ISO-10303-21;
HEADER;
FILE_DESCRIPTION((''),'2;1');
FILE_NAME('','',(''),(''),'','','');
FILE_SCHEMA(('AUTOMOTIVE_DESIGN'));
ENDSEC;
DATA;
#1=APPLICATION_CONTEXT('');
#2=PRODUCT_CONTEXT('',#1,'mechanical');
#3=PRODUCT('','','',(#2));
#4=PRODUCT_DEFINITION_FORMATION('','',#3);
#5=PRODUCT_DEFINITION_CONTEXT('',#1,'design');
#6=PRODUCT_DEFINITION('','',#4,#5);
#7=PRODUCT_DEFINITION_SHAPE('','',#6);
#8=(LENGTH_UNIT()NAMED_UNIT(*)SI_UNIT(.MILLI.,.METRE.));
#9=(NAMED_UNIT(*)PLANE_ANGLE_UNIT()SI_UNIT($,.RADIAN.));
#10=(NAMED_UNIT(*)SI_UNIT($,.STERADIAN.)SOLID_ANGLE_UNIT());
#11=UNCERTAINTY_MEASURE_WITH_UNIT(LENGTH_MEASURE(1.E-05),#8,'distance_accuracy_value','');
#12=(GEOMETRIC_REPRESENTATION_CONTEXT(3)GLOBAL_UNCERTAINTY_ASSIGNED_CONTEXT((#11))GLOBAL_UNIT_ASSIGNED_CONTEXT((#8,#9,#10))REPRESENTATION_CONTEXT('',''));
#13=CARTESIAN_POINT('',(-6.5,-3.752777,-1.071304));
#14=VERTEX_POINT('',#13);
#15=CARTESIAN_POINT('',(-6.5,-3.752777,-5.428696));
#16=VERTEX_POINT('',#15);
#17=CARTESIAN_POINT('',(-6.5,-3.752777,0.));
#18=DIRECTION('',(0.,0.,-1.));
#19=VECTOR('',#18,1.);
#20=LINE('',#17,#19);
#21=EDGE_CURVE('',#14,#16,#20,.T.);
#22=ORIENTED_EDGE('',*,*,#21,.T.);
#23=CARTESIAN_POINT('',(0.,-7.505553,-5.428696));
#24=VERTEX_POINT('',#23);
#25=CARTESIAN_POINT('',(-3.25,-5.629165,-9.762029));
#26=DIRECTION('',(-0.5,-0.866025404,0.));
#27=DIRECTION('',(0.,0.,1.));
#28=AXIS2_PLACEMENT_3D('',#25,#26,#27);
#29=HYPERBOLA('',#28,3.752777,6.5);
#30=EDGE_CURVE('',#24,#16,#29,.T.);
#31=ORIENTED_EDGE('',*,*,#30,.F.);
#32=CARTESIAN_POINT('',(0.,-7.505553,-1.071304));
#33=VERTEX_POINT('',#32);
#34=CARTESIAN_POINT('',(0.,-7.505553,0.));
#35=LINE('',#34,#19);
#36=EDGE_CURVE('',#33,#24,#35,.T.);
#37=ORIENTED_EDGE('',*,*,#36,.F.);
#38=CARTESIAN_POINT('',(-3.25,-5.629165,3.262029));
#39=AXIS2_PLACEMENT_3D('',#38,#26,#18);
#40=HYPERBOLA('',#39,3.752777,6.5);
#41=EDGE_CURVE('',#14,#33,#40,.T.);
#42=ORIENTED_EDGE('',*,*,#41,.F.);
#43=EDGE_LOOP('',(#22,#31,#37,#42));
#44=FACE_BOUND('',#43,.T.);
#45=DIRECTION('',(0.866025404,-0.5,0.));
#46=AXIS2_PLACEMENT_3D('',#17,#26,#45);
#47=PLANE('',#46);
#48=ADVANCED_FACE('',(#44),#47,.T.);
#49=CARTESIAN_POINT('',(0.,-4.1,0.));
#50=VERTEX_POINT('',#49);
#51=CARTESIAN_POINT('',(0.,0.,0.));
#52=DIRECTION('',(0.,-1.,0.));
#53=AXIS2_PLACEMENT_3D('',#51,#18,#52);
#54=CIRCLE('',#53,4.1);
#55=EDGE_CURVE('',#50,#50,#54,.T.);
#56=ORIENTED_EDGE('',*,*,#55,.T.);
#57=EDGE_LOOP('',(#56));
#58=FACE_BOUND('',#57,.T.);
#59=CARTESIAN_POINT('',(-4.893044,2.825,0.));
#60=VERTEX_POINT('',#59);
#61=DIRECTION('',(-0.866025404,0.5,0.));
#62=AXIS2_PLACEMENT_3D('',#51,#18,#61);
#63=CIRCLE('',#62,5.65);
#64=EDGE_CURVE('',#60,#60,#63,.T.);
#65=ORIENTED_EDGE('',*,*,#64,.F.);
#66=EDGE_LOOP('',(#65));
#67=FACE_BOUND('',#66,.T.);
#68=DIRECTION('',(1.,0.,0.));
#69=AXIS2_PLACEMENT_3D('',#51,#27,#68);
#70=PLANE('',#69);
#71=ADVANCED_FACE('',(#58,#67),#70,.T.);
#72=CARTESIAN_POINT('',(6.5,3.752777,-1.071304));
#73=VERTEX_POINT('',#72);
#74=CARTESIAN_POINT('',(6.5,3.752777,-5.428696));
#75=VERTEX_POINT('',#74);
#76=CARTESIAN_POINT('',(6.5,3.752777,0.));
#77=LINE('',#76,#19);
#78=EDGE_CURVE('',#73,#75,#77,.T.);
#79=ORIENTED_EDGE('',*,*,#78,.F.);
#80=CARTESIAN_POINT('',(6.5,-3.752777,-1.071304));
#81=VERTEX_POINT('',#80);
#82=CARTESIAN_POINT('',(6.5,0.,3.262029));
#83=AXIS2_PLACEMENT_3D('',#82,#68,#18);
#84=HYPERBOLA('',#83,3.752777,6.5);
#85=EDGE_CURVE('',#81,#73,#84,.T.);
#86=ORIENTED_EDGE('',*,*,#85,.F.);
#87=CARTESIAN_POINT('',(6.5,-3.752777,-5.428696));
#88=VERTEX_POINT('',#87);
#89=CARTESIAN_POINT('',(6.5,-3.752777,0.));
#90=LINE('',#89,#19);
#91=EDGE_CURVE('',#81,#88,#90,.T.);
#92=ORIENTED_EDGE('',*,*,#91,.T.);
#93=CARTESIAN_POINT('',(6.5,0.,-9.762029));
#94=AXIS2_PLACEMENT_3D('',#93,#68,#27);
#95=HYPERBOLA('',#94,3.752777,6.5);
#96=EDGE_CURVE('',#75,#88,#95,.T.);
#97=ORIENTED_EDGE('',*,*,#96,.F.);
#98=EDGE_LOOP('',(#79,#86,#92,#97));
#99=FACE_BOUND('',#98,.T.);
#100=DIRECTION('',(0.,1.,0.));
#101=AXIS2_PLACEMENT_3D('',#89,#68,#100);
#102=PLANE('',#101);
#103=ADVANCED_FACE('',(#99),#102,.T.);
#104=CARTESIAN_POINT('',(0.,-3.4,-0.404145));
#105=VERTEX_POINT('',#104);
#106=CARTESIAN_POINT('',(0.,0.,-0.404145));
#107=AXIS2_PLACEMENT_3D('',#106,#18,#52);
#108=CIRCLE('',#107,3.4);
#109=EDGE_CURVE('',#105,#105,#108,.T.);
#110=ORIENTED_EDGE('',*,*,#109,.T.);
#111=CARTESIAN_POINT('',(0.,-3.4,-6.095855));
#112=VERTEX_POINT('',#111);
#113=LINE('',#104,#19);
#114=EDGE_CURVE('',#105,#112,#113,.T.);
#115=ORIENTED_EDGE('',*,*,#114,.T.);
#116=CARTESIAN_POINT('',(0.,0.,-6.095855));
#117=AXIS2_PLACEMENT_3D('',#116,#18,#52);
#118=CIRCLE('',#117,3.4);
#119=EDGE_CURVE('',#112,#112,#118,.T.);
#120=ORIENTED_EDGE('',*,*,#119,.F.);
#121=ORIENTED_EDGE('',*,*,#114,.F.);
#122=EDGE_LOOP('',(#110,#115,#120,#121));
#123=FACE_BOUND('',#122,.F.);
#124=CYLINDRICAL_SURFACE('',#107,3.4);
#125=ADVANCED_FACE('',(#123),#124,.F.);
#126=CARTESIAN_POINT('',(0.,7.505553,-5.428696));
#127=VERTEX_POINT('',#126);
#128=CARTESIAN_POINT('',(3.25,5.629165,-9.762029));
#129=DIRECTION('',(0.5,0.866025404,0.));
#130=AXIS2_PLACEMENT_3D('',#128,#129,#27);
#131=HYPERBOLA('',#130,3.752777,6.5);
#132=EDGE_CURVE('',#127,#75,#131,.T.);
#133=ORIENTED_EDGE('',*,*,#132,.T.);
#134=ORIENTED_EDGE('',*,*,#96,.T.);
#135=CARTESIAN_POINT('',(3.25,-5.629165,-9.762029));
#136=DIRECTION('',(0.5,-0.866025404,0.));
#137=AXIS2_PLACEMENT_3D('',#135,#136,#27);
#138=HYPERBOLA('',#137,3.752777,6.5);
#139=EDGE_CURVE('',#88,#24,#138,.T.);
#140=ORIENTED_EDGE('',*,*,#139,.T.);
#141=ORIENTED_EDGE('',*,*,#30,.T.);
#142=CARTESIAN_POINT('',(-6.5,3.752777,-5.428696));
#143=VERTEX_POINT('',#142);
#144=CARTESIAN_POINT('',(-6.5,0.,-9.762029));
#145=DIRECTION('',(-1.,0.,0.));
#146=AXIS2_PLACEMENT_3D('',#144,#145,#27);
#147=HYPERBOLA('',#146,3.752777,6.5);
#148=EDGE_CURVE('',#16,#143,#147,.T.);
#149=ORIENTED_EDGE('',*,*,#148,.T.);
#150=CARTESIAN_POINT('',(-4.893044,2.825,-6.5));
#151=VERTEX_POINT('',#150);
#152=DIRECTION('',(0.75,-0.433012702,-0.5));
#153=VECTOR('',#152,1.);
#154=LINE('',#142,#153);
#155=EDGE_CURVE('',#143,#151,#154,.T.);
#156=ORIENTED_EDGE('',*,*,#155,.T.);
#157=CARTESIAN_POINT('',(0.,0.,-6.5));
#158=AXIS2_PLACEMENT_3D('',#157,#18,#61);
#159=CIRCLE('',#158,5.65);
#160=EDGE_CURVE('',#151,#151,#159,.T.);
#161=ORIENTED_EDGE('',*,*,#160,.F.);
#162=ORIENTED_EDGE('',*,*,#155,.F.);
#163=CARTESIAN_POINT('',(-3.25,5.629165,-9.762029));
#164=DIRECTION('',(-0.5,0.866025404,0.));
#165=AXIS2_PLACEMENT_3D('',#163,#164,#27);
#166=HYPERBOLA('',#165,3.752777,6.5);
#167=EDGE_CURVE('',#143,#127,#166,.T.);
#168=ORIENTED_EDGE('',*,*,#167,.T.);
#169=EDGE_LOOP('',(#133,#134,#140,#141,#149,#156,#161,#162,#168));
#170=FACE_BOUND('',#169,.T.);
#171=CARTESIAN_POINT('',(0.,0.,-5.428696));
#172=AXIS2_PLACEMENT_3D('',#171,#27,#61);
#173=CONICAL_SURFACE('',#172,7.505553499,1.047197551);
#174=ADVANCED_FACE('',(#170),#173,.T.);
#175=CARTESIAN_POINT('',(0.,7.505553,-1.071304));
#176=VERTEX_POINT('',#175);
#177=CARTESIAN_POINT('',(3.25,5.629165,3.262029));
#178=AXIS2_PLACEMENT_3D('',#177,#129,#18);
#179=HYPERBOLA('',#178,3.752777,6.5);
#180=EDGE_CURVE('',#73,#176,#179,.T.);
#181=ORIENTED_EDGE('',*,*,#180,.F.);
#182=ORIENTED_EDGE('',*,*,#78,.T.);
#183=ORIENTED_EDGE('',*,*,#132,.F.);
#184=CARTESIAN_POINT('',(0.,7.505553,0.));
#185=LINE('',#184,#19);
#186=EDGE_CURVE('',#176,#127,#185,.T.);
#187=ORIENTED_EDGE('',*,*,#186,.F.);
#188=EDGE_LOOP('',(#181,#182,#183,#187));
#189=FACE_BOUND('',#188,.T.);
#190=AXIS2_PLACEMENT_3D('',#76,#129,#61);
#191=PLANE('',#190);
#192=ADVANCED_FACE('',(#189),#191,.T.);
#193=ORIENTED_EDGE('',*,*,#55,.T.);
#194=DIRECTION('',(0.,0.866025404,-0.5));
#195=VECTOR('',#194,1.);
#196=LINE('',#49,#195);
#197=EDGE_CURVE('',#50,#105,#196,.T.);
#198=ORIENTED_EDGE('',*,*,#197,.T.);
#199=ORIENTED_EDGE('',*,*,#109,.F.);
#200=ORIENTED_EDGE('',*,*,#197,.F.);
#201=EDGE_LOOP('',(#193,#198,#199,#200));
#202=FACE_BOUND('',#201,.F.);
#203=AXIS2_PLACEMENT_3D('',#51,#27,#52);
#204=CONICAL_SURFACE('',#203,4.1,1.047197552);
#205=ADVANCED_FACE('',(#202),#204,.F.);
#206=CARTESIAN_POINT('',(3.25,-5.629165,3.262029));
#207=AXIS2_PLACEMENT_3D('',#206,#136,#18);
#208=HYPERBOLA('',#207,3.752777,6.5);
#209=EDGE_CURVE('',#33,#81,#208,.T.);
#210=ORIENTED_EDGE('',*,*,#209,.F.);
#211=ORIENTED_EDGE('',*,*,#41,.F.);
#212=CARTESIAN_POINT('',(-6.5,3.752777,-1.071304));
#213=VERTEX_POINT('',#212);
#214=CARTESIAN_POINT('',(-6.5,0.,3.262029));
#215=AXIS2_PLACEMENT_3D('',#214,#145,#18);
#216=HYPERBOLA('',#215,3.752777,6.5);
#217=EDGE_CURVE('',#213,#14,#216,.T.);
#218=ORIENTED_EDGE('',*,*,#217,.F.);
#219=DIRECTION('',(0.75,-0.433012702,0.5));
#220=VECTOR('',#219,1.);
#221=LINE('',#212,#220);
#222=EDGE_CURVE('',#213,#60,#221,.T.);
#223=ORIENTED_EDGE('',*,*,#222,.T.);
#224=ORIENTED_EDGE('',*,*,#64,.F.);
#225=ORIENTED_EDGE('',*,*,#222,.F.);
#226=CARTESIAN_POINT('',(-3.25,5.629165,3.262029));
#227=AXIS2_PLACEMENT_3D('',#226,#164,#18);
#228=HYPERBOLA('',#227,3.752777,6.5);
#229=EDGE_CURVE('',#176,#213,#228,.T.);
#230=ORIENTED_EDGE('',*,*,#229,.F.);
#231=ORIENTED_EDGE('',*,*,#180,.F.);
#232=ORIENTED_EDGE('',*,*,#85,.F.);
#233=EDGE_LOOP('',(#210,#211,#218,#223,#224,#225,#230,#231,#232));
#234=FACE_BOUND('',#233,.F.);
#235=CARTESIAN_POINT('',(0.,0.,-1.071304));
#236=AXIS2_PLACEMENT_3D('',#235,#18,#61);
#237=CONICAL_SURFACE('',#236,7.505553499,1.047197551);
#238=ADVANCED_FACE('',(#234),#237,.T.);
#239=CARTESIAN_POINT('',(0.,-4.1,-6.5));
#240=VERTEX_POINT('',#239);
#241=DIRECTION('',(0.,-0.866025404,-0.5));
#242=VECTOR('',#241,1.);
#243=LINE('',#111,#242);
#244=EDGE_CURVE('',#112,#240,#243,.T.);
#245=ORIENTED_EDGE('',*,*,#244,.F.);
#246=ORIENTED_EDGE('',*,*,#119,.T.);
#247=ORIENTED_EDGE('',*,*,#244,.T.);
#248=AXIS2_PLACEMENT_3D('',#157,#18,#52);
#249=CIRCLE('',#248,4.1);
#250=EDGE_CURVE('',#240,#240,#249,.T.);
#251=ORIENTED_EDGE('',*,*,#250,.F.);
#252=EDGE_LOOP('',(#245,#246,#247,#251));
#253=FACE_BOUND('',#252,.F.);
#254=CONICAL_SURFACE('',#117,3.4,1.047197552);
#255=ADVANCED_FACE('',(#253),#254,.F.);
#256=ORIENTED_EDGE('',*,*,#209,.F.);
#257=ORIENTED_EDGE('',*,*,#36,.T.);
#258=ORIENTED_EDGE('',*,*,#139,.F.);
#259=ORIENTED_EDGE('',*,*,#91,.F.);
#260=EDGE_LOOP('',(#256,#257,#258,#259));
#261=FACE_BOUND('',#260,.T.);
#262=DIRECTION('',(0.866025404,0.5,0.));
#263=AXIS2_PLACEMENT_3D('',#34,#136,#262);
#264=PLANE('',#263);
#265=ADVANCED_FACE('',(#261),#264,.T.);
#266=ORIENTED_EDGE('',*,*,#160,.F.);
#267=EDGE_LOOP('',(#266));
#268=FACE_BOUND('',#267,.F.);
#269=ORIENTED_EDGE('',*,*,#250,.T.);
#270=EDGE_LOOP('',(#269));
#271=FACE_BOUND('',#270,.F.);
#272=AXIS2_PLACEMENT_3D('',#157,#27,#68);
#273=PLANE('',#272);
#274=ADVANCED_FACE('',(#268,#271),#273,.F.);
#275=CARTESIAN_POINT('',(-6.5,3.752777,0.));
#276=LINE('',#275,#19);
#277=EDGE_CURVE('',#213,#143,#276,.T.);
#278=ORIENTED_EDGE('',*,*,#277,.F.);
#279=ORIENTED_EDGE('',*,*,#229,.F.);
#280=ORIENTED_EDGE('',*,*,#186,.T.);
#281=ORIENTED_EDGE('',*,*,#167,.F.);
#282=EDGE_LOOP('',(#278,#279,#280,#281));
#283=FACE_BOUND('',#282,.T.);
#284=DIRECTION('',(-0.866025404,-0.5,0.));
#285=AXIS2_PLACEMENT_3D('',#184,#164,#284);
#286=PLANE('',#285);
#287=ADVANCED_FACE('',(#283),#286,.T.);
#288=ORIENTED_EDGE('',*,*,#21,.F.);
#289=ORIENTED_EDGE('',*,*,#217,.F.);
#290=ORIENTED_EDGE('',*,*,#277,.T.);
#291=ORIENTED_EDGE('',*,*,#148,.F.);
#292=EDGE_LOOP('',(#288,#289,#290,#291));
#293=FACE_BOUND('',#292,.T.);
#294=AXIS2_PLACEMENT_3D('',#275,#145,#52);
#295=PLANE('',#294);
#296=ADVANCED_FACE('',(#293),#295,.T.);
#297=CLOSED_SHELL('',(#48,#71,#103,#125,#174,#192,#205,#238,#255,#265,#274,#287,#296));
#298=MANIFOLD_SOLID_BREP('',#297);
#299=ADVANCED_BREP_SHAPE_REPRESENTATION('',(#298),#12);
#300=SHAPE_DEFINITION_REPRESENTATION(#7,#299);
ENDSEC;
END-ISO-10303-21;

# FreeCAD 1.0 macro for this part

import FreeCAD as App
import Part
import Sketcher
Q = App.Units.Quantity

doc = App.newDocument("Part")
body = doc.addObject("PartDesign::Body", "Body")

# Sketch on XY plane
sketch1 = body.newObject("Sketcher::SketchObject", "Sketch")
sketch1.AttachmentSupport = (doc.getObject("XY_Plane"), [""])
sketch1.MapMode = "FlatFace"
sketch1.addGeometry([
    Part.LineSegment(App.Vector(0, 8, 0), App.Vector(-6, 4, 0)),  # 0
    Part.LineSegment(App.Vector(-6, 4, 0), App.Vector(-6, -4, 0)),  # 1
    Part.LineSegment(App.Vector(-6, -4, 0), App.Vector(0, -8, 0)),  # 2
    Part.LineSegment(App.Vector(0, -8, 0), App.Vector(6, -4, 0)),  # 3
    Part.LineSegment(App.Vector(6, -4, 0), App.Vector(6, 4, 0)),  # 4
    Part.LineSegment(App.Vector(6, 4, 0), App.Vector(0, 8, 0)),  # 5
], False)
sketch1.addConstraint([
    Sketcher.Constraint("Coincident", 0, 2, 1, 1),
    Sketcher.Constraint("Coincident", 1, 2, 2, 1),
    Sketcher.Constraint("Coincident", 2, 2, 3, 1),
    Sketcher.Constraint("Coincident", 3, 2, 4, 1),
    Sketcher.Constraint("Coincident", 4, 2, 5, 1),
    Sketcher.Constraint("Coincident", 5, 2, 0, 1),
    Sketcher.Constraint("Vertical", 1),
    Sketcher.Constraint("Vertical", 4),
    Sketcher.Constraint("Symmetric", 0, 2, 3, 2, -1, 1),
    Sketcher.Constraint("Symmetric", 2, 2, 5, 2, -1, 1),
    Sketcher.Constraint("PointOnObject", 2, 2, -2),
    Sketcher.Constraint("Parallel", 2, 5),
    Sketcher.Constraint("Horizontal", 1, 2, 3, 2),
    Sketcher.Constraint("Angle", 0, Q("-150 deg")),
    Sketcher.Constraint("DistanceX", 1, 2, 3, 2, Q("13 mm")),
    Sketcher.Constraint("DistanceY", 1, 2, 1, 1, Q("7.505554 mm")),
])
pad1 = body.newObject("PartDesign::Pad", "Pad")
pad1.Profile = sketch1
pad1.Length = 6.5
pad1.Reversed = True

# Sketch on YZ plane
sketch2 = body.newObject("Sketcher::SketchObject", "Sketch001")
sketch2.AttachmentSupport = (doc.getObject("YZ_Plane"), [""])
sketch2.MapMode = "FlatFace"
sketch2.addGeometry([
    Part.LineSegment(App.Vector(7.5, -6.5, 0), App.Vector(7.5, -5.4, 0)),  # 0
    Part.LineSegment(App.Vector(7.5, -5.4, 0), App.Vector(5.7, -6.5, 0)),  # 1
    Part.LineSegment(App.Vector(5.7, -6.5, 0), App.Vector(7.5, -6.5, 0)),  # 2
    Part.LineSegment(App.Vector(7.5, -1.1, 0), App.Vector(7.5, 0, 0)),  # 3
    Part.LineSegment(App.Vector(7.5, 0, 0), App.Vector(5.7, 0, 0)),  # 4
    Part.LineSegment(App.Vector(5.7, 0, 0), App.Vector(7.5, -1.1, 0)),  # 5
], False)
sketch2.addConstraint([
    Sketcher.Constraint("Coincident", 0, 2, 1, 1),
    Sketcher.Constraint("Coincident", 1, 2, 2, 1),
    Sketcher.Constraint("Coincident", 2, 2, 0, 1),
    Sketcher.Constraint("Coincident", 3, 2, 4, 1),
    Sketcher.Constraint("Coincident", 4, 2, 5, 1),
    Sketcher.Constraint("Coincident", 5, 2, 3, 1),
    Sketcher.Constraint("Vertical", 0),
    Sketcher.Constraint("Horizontal", 2),
    Sketcher.Constraint("Vertical", 3),
    Sketcher.Constraint("Horizontal", 4),
    Sketcher.Constraint("PointOnObject", 3, 2, -1),
    Sketcher.Constraint("Vertical", 2, 2, 3, 2),
    Sketcher.Constraint("Vertical", 1, 2, 4, 2),
    Sketcher.Constraint("Equal", 0, 3),
    Sketcher.Constraint("Angle", 1, Q("-150 deg")),
    Sketcher.Constraint("DistanceY", 1, 2, -1, 1, Q("6.5 mm")),
    Sketcher.Constraint("DistanceX", -1, 1, 1, 2, Q("5.65 mm")),
    Sketcher.Constraint("Distance", 1, Q("2.142609 mm")),
])
groove = body.newObject("PartDesign::Groove", "Groove")
groove.Profile = sketch2
groove.ReferenceAxis = (sketch2, ["V_Axis"])
groove.Angle = 360

# Sketch on YZ plane
sketch3 = body.newObject("Sketcher::SketchObject", "Sketch002")
sketch3.AttachmentSupport = (doc.getObject("YZ_Plane"), [""])
sketch3.MapMode = "FlatFace"
sketch3.addGeometry([
    Part.LineSegment(App.Vector(4.1, 0, 0), App.Vector(0, 0, 0)),  # 0
    Part.LineSegment(App.Vector(0, 0, 0), App.Vector(0, -6.5, 0)),  # 1
    Part.LineSegment(App.Vector(0, -6.5, 0), App.Vector(4.1, -6.5, 0)),  # 2
    Part.LineSegment(App.Vector(4.1, -6.5, 0), App.Vector(3.4, -6.1, 0)),  # 3
    Part.LineSegment(App.Vector(3.4, -6.1, 0), App.Vector(3.4, -0.4, 0)),  # 4
    Part.LineSegment(App.Vector(3.4, -0.4, 0), App.Vector(4.1, 0, 0)),  # 5
], False)
sketch3.addConstraint([
    Sketcher.Constraint("Coincident", 0, 2, 1, 1),
    Sketcher.Constraint("Coincident", 1, 2, 2, 1),
    Sketcher.Constraint("Coincident", 2, 2, 3, 1),
    Sketcher.Constraint("Coincident", 3, 2, 4, 1),
    Sketcher.Constraint("Coincident", 4, 2, 5, 1),
    Sketcher.Constraint("Coincident", 5, 2, 0, 1),
    Sketcher.Constraint("Horizontal", 0),
    Sketcher.Constraint("Vertical", 1),
    Sketcher.Constraint("Horizontal", 2),
    Sketcher.Constraint("Vertical", 4),
    Sketcher.Constraint("Coincident", 0, 2, -1, 1),
    Sketcher.Constraint("Vertical", 2, 2, 5, 2),
    Sketcher.Constraint("Equal", 3, 5),
    Sketcher.Constraint("Angle", 3, Q("150 deg")),
    Sketcher.Constraint("DistanceX", 0, 2, 0, 1, Q("4.1 mm")),
    Sketcher.Constraint("DistanceY", 1, 2, 1, 1, Q("6.5 mm")),
    Sketcher.Constraint("DistanceX", -1, 1, 3, 2, Q("3.4 mm")),
])
groove2 = body.newObject("PartDesign::Groove", "Groove001")
groove2.Profile = sketch3
groove2.ReferenceAxis = (sketch3, ["V_Axis"])
groove2.Angle = 360

doc.recompute()
